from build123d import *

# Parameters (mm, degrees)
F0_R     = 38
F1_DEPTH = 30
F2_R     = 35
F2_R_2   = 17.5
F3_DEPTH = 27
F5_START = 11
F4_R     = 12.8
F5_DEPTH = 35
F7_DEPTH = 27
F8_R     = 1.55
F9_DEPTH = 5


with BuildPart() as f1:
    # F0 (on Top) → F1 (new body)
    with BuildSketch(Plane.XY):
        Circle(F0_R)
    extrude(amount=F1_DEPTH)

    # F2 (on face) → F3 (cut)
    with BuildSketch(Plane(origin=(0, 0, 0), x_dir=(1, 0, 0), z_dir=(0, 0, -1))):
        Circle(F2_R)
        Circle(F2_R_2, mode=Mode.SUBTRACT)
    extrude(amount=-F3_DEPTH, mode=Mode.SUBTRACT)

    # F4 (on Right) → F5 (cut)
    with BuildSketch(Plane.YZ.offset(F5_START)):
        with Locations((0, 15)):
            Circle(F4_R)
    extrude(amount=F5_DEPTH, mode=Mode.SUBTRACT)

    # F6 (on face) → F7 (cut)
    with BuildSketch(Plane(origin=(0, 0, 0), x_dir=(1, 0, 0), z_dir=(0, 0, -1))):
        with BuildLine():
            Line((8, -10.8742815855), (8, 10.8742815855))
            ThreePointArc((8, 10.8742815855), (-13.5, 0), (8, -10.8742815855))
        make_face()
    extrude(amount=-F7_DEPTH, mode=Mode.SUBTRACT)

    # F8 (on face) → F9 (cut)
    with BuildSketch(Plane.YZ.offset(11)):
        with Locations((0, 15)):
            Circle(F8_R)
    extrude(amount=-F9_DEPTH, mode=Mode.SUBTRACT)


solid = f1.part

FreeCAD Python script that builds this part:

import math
import FreeCAD as App
import Part
import Sketcher
from FreeCAD import Vector
Q = App.Units.Quantity

doc = App.newDocument("Part")
body = doc.addObject("PartDesign::Body", "Body")

sketch1 = body.newObject("Sketcher::SketchObject", "Sketch")
sketch1.AttachmentSupport = (doc.getObject("XY_Plane"), [""])
sketch1.MapMode = "FlatFace"
sketch1.addGeometry(Part.Circle(Vector(0, 0, 0), Vector(0, 0, 1), 38), False)
sketch1.addConstraint(Sketcher.Constraint("Coincident", 0, 3, -1, 1))
sketch1.addConstraint(Sketcher.Constraint("Diameter", 0, Q("76 mm")))
pad1 = body.newObject("PartDesign::Pad", "Pad")
pad1.Profile = sketch1
pad1.Length = 30

sketch2 = body.newObject("Sketcher::SketchObject", "Sketch001")
sketch2.AttachmentSupport = (doc.getObject("XY_Plane"), [""])
sketch2.MapMode = "FlatFace"
sketch2.addGeometry(Part.Circle(Vector(0, 0, 0), Vector(0, 0, 1), 35), False)
sketch2.addGeometry(Part.Circle(Vector(0, 0, 0), Vector(0, 0, 1), 17.5), False)
sketch2.addConstraint(Sketcher.Constraint("Coincident", 0, 3, -1, 1))
sketch2.addConstraint(Sketcher.Constraint("Coincident", 1, 3, -1, 1))
sketch2.addConstraint(Sketcher.Constraint("Diameter", 0, Q("70 mm")))
sketch2.addConstraint(Sketcher.Constraint("Diameter", 1, Q("35 mm")))
pocket1 = body.newObject("PartDesign::Pocket", "Pocket")
pocket1.Profile = sketch2
pocket1.Length = 27
pocket1.Reversed = True

sketch3 = body.newObject("Sketcher::SketchObject", "Sketch002")
sketch3.AttachmentSupport = (doc.getObject("YZ_Plane"), [""])
sketch3.MapMode = "FlatFace"
sketch3.AttachmentOffset = App.Placement(Vector(0, 0, 11), App.Rotation())
sketch3.addGeometry(Part.Circle(Vector(0, 15, 0), Vector(0, 0, 1), 12.8), False)
sketch3.addConstraint(Sketcher.Constraint("PointOnObject", 0, 3, -2))
sketch3.addConstraint(Sketcher.Constraint("Diameter", 0, Q("25.6 mm")))
sketch3.addConstraint(Sketcher.Constraint("DistanceY", -1, 1, 0, 3, Q("15 mm")))
pocket2 = body.newObject("PartDesign::Pocket", "Pocket001")
pocket2.Profile = sketch3
pocket2.Length = 35
pocket2.Reversed = True

sketch4 = body.newObject("Sketcher::SketchObject", "Sketch003")
sketch4.AttachmentSupport = (doc.getObject("XY_Plane"), [""])
sketch4.MapMode = "FlatFace"
sketch4.addGeometry(Part.LineSegment(Vector(8, 10.874282, 0), Vector(8, -10.874282, 0)), False)
sketch4.addGeometry(Part.ArcOfCircle(Part.Circle(Vector(0, 0, 0), Vector(0, 0, 1), 13.5), math.radians(53.658797), math.radians(306.341203)), False)
sketch4.addConstraint(Sketcher.Constraint("Coincident", 0, 1, 1, 1))
sketch4.addConstraint(Sketcher.Constraint("Coincident", 1, 2, 0, 2))
sketch4.addConstraint(Sketcher.Constraint("Vertical", 0))
sketch4.addConstraint(Sketcher.Constraint("Coincident", 1, 3, -1, 1))
sketch4.addConstraint(Sketcher.Constraint("Radius", 1, Q("13.5 mm")))
sketch4.addConstraint(Sketcher.Constraint("DistanceX", -1, 1, 0, 1, Q("8 mm")))
pocket3 = body.newObject("PartDesign::Pocket", "Pocket002")
pocket3.Profile = sketch4
pocket3.Length = 27
pocket3.Reversed = True

sketch5 = body.newObject("Sketcher::SketchObject", "Sketch004")
sketch5.AttachmentSupport = (doc.getObject("YZ_Plane"), [""])
sketch5.MapMode = "FlatFace"
sketch5.AttachmentOffset = App.Placement(Vector(0, 0, 11), App.Rotation())
sketch5.addGeometry(Part.Circle(Vector(0, 15, 0), Vector(0, 0, 1), 1.55), False)
sketch5.addConstraint(Sketcher.Constraint("PointOnObject", 0, 3, -2))
sketch5.addConstraint(Sketcher.Constraint("Diameter", 0, Q("3.1 mm")))
sketch5.addConstraint(Sketcher.Constraint("DistanceY", -1, 1, 0, 3, Q("15 mm")))
pocket4 = body.newObject("PartDesign::Pocket", "Pocket003")
pocket4.Profile = sketch5
pocket4.Length = 5

doc.recompute()
